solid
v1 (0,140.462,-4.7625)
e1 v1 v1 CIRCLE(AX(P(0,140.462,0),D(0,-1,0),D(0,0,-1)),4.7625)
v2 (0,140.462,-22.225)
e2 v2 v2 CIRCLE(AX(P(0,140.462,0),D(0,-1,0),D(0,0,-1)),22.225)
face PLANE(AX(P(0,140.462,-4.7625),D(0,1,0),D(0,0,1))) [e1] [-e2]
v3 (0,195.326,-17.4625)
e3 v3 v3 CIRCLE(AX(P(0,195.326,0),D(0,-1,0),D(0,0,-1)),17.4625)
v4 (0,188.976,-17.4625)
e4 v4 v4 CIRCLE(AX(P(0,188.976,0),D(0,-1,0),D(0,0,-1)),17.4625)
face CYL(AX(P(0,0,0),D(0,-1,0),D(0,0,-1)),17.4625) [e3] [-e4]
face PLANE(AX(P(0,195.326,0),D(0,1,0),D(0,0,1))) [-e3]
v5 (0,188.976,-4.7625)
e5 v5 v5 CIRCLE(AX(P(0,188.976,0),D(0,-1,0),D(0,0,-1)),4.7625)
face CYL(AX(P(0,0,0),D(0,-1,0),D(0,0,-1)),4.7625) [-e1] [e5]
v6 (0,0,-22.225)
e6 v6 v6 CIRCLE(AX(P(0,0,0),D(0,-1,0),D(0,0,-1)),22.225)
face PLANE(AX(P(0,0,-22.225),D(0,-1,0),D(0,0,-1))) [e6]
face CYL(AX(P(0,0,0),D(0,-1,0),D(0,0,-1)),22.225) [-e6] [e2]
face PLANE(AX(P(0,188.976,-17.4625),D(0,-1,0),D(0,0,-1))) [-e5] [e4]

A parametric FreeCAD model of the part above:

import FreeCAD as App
import Part
import Sketcher
Q = App.Units.Quantity


def add_polygon(sketch, points):
    """Adds a closed chain of lines whose ends are joined by coincident constraints."""
    first, n = sketch.GeometryCount, len(points)
    for a, b in zip(points, points[1:] + points[:1]):
        sketch.addGeometry(Part.LineSegment(App.Vector(*a, 0), App.Vector(*b, 0)), False)
    for i in range(n):
        sketch.addConstraint(Sketcher.Constraint("Coincident", first + i, 2, first + (i + 1) % n, 1))

doc = App.newDocument("Part")
body = doc.addObject("PartDesign::Body", "Body")

sketch1 = body.newObject("Sketcher::SketchObject", "Sketch")
sketch1.AttachmentSupport = (doc.getObject("YZ_Plane"), [""])
sketch1.MapMode = "FlatFace"
add_polygon(sketch1, [(195, -17), (195, 0), (0, 0), (0, -22), (140, -22), (140, -5), (189, -5), (189, -17)])
sketch1.addConstraint([
    Sketcher.Constraint("Vertical", 0),
    Sketcher.Constraint("Horizontal", 1),
    Sketcher.Constraint("Vertical", 2),
    Sketcher.Constraint("Horizontal", 3),
    Sketcher.Constraint("Vertical", 4),
    Sketcher.Constraint("Horizontal", 5),
    Sketcher.Constraint("Vertical", 6),
    Sketcher.Constraint("Horizontal", 7),
    Sketcher.Constraint("Coincident", 1, 2, -1, 1),
    Sketcher.Constraint("Equal", 0, 4),
    Sketcher.Constraint("DistanceY", 6, 2, 6, 1, Q("0.5 in")),
    Sketcher.Constraint("DistanceX", 1, 2, 1, 1, Q("7.69 in")),
    Sketcher.Constraint("DistanceX", 3, 1, 3, 2, Q("5.53 in")),
    Sketcher.Constraint("DistanceX", 5, 1, 5, 2, Q("1.91 in")),
    Sketcher.Constraint("DistanceY", 0, 1, 0, 2, Q("0.6875 in")),
])
revolution = body.newObject("PartDesign::Revolution", "Revolution")
revolution.Profile = sketch1
revolution.ReferenceAxis = (sketch1, ["H_Axis"])
revolution.Angle = 360

doc.recompute()
